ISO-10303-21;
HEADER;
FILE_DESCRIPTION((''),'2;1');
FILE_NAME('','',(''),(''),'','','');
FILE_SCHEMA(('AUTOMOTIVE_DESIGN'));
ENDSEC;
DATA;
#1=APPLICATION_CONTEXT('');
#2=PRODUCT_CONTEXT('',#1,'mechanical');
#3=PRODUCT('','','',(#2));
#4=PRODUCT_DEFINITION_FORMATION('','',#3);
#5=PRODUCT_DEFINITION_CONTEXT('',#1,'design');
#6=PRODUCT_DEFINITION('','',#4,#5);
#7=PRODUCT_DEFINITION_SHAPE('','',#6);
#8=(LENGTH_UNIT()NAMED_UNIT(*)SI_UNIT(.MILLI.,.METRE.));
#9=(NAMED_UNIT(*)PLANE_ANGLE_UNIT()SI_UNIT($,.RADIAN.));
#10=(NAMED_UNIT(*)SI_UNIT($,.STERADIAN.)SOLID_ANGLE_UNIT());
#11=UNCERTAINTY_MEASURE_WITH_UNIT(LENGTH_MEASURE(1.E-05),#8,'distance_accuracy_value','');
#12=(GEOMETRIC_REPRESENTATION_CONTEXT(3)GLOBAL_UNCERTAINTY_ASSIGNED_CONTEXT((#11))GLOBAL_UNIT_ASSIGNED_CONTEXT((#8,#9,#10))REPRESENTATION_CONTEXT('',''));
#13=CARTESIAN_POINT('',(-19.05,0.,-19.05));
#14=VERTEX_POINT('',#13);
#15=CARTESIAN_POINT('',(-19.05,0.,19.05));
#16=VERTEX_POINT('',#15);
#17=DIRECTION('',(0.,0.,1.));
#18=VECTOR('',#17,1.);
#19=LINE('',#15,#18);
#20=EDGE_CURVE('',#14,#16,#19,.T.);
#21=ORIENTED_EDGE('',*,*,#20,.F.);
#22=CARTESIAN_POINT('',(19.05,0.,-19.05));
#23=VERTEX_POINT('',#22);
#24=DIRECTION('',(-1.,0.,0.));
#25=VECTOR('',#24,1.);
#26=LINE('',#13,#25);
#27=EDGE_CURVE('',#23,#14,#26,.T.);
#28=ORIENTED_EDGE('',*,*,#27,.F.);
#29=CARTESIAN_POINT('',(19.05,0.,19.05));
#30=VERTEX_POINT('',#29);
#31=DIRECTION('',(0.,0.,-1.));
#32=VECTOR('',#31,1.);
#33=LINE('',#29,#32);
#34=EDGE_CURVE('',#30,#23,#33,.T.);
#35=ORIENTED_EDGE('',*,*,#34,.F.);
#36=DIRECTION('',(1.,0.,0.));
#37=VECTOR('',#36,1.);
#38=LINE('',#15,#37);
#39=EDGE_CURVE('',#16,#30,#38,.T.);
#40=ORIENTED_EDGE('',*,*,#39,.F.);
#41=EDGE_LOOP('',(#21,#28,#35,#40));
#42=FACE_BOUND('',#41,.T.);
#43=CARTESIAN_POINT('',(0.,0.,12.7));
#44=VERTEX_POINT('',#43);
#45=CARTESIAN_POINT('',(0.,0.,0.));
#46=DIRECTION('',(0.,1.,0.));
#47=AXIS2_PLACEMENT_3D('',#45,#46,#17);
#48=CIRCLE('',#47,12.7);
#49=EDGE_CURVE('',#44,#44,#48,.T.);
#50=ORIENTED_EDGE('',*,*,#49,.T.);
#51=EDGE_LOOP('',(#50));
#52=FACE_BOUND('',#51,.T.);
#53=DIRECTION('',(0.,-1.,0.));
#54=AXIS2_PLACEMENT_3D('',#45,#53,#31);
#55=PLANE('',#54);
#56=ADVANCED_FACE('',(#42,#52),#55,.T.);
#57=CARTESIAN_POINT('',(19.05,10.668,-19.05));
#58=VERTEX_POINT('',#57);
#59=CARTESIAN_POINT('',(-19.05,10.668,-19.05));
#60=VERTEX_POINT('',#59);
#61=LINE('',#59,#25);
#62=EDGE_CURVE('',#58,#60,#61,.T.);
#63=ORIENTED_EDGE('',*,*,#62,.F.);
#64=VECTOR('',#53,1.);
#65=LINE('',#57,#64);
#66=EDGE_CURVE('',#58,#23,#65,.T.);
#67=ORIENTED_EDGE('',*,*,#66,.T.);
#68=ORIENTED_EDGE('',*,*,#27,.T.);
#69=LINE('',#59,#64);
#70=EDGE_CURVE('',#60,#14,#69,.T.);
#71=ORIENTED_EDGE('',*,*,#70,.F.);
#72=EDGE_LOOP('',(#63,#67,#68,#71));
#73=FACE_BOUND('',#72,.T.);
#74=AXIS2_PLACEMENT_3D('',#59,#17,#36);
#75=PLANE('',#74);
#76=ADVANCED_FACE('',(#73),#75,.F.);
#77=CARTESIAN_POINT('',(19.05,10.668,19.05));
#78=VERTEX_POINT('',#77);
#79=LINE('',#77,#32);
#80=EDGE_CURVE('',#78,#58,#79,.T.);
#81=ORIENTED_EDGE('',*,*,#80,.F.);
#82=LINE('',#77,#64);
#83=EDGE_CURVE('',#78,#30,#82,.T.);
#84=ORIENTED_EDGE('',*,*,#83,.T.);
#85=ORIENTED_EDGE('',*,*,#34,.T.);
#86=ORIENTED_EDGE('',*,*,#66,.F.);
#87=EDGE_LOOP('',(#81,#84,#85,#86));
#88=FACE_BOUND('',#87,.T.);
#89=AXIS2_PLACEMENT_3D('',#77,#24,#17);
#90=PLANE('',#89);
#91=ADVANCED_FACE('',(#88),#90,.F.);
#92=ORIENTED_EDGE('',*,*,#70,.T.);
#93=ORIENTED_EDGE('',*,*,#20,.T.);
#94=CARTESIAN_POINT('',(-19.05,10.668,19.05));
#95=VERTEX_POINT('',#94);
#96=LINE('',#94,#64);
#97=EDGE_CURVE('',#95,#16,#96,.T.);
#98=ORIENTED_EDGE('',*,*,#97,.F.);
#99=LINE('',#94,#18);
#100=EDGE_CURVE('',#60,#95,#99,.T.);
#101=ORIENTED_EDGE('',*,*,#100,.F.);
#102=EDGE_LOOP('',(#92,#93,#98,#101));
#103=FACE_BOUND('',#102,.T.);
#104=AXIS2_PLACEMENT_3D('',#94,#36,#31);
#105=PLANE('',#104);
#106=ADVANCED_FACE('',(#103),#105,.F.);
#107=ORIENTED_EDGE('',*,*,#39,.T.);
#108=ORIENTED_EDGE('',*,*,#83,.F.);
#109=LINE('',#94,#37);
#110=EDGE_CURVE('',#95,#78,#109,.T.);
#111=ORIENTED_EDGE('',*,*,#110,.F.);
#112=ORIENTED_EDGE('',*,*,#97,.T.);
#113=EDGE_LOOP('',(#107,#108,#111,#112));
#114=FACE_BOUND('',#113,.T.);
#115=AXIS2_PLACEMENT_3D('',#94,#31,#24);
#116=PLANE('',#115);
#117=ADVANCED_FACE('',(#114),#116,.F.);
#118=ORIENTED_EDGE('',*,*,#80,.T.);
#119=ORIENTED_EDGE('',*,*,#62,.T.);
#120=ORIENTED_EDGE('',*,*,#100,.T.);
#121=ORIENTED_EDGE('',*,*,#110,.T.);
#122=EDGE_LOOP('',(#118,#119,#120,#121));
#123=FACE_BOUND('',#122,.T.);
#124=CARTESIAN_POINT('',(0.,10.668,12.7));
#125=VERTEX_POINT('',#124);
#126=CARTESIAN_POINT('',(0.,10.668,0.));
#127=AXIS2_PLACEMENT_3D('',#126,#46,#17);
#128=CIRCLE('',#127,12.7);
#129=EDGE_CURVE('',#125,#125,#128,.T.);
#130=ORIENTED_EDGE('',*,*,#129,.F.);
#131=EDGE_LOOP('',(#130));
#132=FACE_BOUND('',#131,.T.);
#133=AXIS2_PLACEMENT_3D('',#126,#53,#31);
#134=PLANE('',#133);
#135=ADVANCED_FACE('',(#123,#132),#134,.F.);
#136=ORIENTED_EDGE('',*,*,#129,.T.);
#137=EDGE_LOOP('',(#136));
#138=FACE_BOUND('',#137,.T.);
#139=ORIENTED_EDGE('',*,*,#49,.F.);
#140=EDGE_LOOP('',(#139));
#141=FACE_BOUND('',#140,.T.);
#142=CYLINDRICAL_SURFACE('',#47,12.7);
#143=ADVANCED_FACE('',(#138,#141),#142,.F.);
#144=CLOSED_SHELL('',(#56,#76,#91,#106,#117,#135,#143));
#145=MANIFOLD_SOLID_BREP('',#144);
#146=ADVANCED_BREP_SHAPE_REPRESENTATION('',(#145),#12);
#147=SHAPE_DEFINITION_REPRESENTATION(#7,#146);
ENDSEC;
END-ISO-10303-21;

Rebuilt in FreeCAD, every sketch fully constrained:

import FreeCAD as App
import Part
import Sketcher
from FreeCAD import Vector
Q = App.Units.Quantity

doc = App.newDocument("Part")
body = doc.addObject("PartDesign::Body", "Body")

# Sketch on XZ plane
sketch1 = doc.addObject("Sketcher::SketchObject", "Sketch")
body.addObject(sketch1)
sketch1.AttachmentSupport = (doc.XZ_Plane, [""])
sketch1.MapMode = "FlatFace"
sketch1.addGeometry(Part.LineSegment(Vector(-19, -19, 0), Vector(-19, 19, 0)), False)
sketch1.addGeometry(Part.LineSegment(Vector(-19, 19, 0), Vector(19, 19, 0)), False)
sketch1.addGeometry(Part.LineSegment(Vector(19, 19, 0), Vector(19, -19, 0)), False)
sketch1.addGeometry(Part.LineSegment(Vector(19, -19, 0), Vector(-19, -19, 0)), False)
sketch1.addConstraint(Sketcher.Constraint("Coincident", 0, 2, 1, 1))
sketch1.addConstraint(Sketcher.Constraint("Coincident", 1, 2, 2, 1))
sketch1.addConstraint(Sketcher.Constraint("Coincident", 2, 2, 3, 1))
sketch1.addConstraint(Sketcher.Constraint("Coincident", 3, 2, 0, 1))
sketch1.addConstraint(Sketcher.Constraint("Vertical", 0))
sketch1.addConstraint(Sketcher.Constraint("Horizontal", 1))
sketch1.addConstraint(Sketcher.Constraint("Vertical", 2))
sketch1.addConstraint(Sketcher.Constraint("Horizontal", 3))
sketch1.addConstraint(Sketcher.Constraint("Symmetric", 0, 2, 2, 2, -1, 1))
sketch1.addConstraint(Sketcher.Constraint("Equal", 3, 0))
sketch1.addConstraint(Sketcher.Constraint("DistanceX", 1, 1, 1, 2, Q("1.5 in")))
pad1 = doc.addObject("PartDesign::Pad", "Pad")
body.addObject(pad1)
pad1.Profile = sketch1
pad1.Length = Q("0.42 in")
pad1.Reversed = True

# Sketch on XZ plane
sketch2 = doc.addObject("Sketcher::SketchObject", "Sketch001")
body.addObject(sketch2)
sketch2.AttachmentSupport = (doc.XZ_Plane, [""])
sketch2.MapMode = "FlatFace"
sketch2.AttachmentOffset = App.Placement(Vector(0, 0, -0.42 * 25.4), App.Rotation())
sketch2.addGeometry(Part.Circle(Vector(0, 0, 0), Vector(0, 0, 1), 13), False)
sketch2.addConstraint(Sketcher.Constraint("Coincident", 0, 3, -1, 1))
sketch2.addConstraint(Sketcher.Constraint("Diameter", 0, Q("1 in")))
pocket1 = doc.addObject("PartDesign::Pocket", "Pocket")
body.addObject(pocket1)
pocket1.Profile = sketch2
pocket1.Length = Q("0.42 in")
pocket1.Reversed = True

doc.recompute()
